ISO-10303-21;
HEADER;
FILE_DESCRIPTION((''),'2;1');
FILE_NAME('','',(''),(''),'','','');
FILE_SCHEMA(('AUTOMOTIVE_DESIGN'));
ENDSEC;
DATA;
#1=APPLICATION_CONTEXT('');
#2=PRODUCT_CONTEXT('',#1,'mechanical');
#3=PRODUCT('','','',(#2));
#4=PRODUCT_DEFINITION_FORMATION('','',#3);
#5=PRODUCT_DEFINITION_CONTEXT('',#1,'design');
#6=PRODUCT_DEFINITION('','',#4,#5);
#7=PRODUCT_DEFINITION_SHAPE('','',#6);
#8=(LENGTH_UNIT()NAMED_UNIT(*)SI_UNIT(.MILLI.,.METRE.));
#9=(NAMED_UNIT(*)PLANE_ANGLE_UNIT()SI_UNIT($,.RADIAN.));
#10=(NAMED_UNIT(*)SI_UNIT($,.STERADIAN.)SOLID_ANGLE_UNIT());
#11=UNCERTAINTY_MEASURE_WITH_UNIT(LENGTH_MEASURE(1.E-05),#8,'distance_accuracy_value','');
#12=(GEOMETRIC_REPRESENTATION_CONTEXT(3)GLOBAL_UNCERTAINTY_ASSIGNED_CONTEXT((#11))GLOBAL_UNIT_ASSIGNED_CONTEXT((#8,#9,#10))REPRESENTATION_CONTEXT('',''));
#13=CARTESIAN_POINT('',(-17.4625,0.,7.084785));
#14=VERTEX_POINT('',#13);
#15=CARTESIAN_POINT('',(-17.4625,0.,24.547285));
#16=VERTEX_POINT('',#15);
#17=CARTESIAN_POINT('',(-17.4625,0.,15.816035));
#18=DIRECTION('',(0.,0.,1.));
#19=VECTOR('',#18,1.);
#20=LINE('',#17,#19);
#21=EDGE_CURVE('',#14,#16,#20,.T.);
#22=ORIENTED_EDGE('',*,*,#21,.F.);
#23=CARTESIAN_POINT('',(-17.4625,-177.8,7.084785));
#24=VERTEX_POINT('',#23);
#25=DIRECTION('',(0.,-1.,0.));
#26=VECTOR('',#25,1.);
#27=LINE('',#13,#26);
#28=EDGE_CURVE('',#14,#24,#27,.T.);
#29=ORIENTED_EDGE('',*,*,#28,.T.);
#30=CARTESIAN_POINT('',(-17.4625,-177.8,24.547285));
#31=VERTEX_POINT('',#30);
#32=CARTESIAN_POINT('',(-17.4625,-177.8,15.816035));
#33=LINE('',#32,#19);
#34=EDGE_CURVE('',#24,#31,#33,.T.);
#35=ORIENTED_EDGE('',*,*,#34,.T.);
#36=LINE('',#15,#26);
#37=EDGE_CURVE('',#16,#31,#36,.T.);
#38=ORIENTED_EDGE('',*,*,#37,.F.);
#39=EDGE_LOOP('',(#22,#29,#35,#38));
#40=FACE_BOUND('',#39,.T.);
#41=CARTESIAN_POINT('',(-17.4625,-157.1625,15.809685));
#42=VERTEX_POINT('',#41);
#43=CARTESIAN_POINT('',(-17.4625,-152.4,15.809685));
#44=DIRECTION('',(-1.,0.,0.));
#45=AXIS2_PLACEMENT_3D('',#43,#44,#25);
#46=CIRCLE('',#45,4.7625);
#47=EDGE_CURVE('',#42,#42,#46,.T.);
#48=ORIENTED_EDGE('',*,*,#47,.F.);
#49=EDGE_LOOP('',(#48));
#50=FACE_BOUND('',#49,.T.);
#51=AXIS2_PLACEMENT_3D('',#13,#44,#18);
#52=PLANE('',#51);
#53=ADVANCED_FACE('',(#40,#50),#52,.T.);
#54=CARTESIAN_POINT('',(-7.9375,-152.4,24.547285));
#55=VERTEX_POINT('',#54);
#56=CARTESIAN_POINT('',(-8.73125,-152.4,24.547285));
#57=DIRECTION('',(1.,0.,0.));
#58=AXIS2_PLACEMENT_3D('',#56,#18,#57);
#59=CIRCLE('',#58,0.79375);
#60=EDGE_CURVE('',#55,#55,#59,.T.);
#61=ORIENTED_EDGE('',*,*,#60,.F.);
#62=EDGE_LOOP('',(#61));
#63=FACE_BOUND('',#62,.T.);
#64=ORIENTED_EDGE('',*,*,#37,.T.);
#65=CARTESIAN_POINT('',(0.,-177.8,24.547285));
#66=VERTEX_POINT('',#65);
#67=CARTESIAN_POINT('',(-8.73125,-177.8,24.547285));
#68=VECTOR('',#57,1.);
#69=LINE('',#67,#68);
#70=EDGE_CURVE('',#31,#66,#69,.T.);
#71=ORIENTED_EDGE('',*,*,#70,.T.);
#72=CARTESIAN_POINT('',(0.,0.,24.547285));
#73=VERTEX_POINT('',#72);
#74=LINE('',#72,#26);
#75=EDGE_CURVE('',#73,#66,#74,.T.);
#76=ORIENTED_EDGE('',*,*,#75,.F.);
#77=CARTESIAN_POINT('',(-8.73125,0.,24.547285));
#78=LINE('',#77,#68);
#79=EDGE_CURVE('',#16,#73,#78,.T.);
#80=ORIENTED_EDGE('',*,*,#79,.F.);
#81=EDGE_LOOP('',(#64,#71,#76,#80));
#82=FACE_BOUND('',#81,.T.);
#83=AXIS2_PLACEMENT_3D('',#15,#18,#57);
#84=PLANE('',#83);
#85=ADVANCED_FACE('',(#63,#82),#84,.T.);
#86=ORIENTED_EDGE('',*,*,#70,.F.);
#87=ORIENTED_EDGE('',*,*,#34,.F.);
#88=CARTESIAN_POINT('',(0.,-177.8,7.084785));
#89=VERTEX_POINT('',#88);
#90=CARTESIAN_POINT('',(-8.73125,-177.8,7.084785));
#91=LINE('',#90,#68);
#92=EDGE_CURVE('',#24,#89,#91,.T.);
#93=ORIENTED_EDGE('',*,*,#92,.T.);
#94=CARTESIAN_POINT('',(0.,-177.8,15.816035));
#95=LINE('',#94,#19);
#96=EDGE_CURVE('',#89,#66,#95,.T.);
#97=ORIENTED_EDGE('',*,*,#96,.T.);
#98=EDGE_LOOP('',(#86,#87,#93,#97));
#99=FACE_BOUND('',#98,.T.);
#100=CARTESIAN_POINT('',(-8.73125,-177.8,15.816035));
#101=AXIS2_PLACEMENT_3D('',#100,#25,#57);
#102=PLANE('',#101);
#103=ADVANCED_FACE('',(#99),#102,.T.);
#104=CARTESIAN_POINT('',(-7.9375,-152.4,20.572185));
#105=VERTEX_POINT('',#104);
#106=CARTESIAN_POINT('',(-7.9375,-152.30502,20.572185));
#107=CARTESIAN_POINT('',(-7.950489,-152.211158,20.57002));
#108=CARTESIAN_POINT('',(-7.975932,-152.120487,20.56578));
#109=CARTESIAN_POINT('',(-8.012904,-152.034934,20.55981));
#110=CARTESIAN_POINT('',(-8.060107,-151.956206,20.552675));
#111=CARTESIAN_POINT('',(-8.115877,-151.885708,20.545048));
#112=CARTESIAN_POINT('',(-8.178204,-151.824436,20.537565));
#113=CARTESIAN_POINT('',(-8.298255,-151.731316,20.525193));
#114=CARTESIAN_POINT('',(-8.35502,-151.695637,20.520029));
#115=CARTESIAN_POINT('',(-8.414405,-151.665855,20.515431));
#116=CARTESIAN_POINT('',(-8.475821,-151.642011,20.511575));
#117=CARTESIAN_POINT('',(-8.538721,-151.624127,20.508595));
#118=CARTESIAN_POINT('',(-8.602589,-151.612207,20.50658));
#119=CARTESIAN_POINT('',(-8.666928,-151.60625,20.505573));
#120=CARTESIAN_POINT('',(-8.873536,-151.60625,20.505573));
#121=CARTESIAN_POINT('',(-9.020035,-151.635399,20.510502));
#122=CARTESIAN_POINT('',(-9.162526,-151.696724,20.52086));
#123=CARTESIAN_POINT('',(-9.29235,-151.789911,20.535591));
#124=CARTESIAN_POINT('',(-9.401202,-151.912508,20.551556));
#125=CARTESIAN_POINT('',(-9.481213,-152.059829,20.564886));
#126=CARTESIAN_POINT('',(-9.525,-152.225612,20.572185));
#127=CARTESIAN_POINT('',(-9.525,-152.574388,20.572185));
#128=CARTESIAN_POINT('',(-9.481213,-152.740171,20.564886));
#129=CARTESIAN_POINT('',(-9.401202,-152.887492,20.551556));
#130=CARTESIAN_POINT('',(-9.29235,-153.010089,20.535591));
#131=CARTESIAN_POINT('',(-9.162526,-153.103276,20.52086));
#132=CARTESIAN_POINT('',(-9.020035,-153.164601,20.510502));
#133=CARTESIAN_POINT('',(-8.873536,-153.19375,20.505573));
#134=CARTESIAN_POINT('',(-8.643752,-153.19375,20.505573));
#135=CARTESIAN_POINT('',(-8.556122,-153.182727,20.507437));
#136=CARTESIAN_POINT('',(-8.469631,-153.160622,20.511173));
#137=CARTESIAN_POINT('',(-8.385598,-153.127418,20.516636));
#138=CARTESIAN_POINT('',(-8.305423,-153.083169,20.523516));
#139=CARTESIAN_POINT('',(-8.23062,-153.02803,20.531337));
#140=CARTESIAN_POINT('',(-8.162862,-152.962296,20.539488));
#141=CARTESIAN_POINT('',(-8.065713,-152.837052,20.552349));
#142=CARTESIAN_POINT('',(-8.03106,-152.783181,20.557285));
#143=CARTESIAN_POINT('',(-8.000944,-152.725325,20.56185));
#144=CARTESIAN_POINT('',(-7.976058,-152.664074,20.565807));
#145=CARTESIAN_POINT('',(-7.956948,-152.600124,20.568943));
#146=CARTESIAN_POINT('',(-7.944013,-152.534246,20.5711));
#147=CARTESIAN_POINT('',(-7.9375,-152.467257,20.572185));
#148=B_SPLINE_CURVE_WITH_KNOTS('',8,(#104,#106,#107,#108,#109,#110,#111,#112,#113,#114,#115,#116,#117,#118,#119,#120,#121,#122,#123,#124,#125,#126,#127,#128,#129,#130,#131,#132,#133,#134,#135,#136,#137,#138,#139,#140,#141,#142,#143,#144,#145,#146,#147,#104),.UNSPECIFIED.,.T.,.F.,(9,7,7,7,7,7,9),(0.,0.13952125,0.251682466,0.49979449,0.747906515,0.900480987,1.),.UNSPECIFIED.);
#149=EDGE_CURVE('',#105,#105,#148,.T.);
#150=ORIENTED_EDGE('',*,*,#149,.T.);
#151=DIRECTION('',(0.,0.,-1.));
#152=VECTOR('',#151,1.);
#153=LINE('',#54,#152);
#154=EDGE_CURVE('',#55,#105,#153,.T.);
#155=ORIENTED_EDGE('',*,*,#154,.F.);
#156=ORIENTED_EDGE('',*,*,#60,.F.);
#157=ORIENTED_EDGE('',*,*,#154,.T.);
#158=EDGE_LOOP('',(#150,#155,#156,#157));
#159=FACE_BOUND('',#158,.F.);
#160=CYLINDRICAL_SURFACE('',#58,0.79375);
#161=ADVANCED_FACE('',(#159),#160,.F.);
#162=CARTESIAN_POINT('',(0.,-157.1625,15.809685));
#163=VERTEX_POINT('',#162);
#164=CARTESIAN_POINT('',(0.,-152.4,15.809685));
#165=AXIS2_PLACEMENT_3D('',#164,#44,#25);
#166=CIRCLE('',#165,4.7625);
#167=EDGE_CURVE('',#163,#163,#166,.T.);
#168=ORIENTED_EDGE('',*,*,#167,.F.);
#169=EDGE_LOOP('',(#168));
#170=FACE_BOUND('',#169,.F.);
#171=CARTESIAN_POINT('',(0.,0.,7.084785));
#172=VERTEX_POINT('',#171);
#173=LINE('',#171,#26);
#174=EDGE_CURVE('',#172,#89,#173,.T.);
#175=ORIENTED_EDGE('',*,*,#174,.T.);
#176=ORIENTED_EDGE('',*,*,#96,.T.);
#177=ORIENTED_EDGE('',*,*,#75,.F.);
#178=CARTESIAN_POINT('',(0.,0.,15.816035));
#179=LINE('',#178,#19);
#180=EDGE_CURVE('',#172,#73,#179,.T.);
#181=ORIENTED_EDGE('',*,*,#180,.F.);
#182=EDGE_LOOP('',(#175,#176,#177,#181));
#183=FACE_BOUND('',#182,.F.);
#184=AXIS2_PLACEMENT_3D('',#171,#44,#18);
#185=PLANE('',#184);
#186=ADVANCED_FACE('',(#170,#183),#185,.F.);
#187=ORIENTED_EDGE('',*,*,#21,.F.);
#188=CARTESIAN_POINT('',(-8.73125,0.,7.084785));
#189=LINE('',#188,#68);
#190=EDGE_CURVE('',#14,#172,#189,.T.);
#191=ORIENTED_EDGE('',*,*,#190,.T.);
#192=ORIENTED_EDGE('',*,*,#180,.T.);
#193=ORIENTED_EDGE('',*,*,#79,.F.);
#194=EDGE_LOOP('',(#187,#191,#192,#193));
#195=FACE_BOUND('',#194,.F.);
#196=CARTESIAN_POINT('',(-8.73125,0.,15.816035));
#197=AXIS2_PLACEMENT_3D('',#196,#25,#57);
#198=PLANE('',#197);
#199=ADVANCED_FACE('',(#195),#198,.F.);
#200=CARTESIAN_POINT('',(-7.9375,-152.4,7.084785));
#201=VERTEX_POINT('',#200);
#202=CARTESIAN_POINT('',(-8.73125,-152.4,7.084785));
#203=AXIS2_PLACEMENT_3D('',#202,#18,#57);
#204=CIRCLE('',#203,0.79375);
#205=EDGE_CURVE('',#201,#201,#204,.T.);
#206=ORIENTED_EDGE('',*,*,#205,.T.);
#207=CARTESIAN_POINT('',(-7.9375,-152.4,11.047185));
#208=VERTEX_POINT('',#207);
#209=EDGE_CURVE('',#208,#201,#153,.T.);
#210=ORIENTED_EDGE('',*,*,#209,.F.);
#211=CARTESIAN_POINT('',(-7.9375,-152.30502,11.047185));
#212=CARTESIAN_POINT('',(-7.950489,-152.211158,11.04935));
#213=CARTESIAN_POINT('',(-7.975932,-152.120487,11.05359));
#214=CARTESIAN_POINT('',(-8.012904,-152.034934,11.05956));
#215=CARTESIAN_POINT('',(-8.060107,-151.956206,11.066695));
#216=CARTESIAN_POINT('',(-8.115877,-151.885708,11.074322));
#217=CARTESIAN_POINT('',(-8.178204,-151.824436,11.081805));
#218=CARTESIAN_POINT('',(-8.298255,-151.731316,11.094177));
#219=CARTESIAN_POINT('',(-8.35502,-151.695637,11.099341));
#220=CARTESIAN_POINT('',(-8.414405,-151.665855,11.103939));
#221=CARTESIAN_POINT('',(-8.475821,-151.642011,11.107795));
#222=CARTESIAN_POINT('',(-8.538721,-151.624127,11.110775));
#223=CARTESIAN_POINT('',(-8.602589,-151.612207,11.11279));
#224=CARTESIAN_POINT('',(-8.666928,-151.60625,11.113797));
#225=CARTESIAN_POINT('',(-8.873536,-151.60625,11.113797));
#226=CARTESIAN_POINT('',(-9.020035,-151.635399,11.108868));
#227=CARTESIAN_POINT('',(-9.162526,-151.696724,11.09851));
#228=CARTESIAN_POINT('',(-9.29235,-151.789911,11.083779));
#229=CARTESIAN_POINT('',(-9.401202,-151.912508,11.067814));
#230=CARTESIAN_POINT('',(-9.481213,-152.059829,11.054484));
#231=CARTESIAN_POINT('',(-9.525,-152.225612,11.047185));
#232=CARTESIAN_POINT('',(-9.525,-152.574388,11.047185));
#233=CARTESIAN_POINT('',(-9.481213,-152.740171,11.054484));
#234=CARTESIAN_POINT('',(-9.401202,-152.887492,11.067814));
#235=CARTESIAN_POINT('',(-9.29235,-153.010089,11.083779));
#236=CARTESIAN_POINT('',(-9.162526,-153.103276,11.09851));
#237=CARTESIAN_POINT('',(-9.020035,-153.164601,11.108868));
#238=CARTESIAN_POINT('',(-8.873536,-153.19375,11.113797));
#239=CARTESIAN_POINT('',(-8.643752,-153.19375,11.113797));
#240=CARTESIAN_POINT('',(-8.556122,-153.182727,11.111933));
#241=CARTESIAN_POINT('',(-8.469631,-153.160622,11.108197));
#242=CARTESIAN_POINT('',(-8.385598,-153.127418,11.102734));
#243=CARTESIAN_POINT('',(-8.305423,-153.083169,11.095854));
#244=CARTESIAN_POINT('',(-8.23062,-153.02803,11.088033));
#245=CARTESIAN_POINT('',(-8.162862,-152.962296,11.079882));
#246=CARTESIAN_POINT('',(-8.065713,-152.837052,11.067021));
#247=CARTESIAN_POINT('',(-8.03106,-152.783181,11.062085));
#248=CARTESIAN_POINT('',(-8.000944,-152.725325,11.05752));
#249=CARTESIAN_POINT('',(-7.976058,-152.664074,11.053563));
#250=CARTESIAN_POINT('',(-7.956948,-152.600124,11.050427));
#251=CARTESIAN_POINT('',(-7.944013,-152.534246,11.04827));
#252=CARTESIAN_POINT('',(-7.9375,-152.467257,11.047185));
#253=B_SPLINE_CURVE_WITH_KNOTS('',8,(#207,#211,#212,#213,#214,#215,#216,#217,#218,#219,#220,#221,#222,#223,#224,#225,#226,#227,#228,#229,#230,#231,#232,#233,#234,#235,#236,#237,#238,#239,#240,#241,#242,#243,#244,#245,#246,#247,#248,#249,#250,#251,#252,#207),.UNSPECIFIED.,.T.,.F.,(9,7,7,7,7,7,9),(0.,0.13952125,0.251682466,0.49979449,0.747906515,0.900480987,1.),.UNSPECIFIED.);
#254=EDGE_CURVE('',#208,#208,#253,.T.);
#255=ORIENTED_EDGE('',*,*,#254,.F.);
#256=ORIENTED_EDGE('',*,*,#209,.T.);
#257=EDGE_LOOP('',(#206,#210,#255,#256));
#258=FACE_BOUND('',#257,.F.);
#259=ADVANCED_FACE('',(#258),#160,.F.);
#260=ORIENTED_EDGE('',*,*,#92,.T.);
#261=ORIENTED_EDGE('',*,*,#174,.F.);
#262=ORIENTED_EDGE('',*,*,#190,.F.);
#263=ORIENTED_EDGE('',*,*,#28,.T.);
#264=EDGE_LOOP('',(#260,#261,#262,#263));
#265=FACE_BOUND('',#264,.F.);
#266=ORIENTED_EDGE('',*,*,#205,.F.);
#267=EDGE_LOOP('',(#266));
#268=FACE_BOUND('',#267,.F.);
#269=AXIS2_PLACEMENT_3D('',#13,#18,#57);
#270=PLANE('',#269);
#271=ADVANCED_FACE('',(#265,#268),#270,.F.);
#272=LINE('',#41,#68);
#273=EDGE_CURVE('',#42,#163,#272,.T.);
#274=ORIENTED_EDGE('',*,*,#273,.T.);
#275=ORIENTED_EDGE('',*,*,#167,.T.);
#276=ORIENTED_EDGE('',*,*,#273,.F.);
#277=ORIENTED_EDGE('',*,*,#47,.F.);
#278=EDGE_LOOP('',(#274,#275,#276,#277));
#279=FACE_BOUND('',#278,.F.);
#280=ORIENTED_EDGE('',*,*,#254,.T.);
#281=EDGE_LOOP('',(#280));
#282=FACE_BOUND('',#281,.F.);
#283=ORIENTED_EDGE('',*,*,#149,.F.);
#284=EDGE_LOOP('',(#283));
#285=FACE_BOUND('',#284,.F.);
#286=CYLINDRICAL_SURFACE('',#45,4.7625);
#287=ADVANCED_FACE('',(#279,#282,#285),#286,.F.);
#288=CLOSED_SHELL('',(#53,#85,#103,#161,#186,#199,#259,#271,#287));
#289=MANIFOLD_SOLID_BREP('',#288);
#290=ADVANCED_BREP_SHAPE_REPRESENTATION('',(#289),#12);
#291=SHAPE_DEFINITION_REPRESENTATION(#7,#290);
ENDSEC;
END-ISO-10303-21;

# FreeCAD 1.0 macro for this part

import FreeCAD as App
import Part
import Sketcher

V = App.Vector
Q = App.Units.Quantity


def add_polygon(sketch, points):
    """Adds a closed chain of lines whose ends are joined by coincident constraints."""
    first, n = sketch.GeometryCount, len(points)
    for a, b in zip(points, points[1:] + points[:1]):
        sketch.addGeometry(Part.LineSegment(App.Vector(*a, 0), App.Vector(*b, 0)), False)
    for i in range(n):
        sketch.addConstraint(Sketcher.Constraint("Coincident", first + i, 2, first + (i + 1) % n, 1))

doc = App.newDocument("Part")
body = doc.addObject("PartDesign::Body", "Body")

sketch1 = body.newObject("Sketcher::SketchObject", "Sketch")
sketch1.AttachmentSupport = (doc.getObject("XZ_Plane"), [""])
sketch1.MapMode = "FlatFace"
add_polygon(sketch1, [(-17.4625, 24.547285), (-17.4625, 7.084785), (0, 7.084785), (0, 24.547285)])
sketch1.addConstraint([
    Sketcher.Constraint("Vertical", 0),
    Sketcher.Constraint("Horizontal", 1),
    Sketcher.Constraint("Vertical", 2),
    Sketcher.Constraint("Horizontal", 3),
    Sketcher.Constraint("PointOnObject", 1, 2, -2),
    Sketcher.Constraint("Equal", 3, 0),
    Sketcher.Constraint("DistanceX", 1, 1, 1, 2, Q("0.6875 in")),
    Sketcher.Constraint("DistanceY", -1, 1, 0, 2, 7.084785),
])
pad1 = body.newObject("PartDesign::Pad", "Pad")
pad1.Profile = sketch1
pad1.Length = Q("7 in")

sketch2 = body.newObject("Sketcher::SketchObject", "Sketch001")
sketch2.AttachmentSupport = (doc.getObject("YZ_Plane"), [""])
sketch2.MapMode = "FlatFace"
sketch2.AttachmentOffset = App.Placement(V(0, 0, -0.6875 * 25.4), App.Rotation())
sketch2.addGeometry(Part.Circle(V(-152.4, 15.809685, 0), V(0, 0, 1), 4.7625), False)
sketch2.addConstraint([
    Sketcher.Constraint("Diameter", 0, Q("0.375 in")),
    Sketcher.Constraint("DistanceX", 0, 3, -1, 1, Q("6 in")),
    Sketcher.Constraint("DistanceY", -1, 1, 0, 3, 15.809685),
])
pocket1 = body.newObject("PartDesign::Pocket", "Pocket")
pocket1.Profile = sketch2
pocket1.Length = Q("0.688 in")
pocket1.Reversed = True

sketch3 = body.newObject("Sketcher::SketchObject", "Sketch002")
sketch3.AttachmentSupport = (doc.getObject("XY_Plane"), [""])
sketch3.MapMode = "FlatFace"
sketch3.AttachmentOffset = App.Placement(V(0, 0, 24.547285), App.Rotation())
sketch3.addGeometry(Part.Circle(V(-8.73125, -152.4, 0), V(0, 0, 1), 0.79375), False)
sketch3.addConstraint([
    Sketcher.Constraint("Diameter", 0, Q("0.0625 in")),
    Sketcher.Constraint("DistanceY", 0, 3, -1, 1, Q("6 in")),
    Sketcher.Constraint("DistanceX", 0, 3, -1, 1, Q("0.34375 in")),
])
pocket2 = body.newObject("PartDesign::Pocket", "Pocket001")
pocket2.Profile = sketch3
pocket2.Length = Q("1 in")

doc.recompute()
